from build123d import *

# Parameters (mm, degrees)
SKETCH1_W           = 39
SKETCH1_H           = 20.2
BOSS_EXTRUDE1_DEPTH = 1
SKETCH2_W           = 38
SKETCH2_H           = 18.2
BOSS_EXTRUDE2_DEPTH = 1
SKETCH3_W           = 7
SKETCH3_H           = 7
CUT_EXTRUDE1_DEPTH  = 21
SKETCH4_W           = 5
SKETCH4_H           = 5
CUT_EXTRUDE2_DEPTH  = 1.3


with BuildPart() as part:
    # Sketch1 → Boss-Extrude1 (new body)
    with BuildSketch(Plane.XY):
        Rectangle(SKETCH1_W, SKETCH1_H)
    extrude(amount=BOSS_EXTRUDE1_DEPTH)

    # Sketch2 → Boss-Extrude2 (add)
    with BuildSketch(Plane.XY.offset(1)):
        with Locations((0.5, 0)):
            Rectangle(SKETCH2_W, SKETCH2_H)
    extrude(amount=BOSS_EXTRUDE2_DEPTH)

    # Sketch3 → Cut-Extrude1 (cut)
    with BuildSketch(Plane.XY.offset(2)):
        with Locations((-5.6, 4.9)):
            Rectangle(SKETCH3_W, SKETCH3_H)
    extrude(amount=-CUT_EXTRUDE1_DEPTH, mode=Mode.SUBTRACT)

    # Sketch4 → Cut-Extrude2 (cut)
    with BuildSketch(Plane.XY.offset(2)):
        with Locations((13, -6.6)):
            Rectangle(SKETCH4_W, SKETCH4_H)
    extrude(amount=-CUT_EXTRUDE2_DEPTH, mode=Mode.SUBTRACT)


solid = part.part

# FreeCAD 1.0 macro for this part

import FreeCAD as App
import Part
import Sketcher
Q = App.Units.Quantity

doc = App.newDocument("Part")
body = doc.addObject("PartDesign::Body", "Body")

# Sketch on XY plane
sketch1 = body.newObject("Sketcher::SketchObject", "Sketch")
sketch1.AttachmentSupport = (doc.getObject("XY_Plane"), [""])
sketch1.MapMode = "FlatFace"
sketch1.addGeometry(Part.LineSegment(App.Vector(-20, 10, 0), App.Vector(-20, -10, 0)), False)
sketch1.addGeometry(Part.LineSegment(App.Vector(-20, -10, 0), App.Vector(20, -10, 0)), False)
sketch1.addGeometry(Part.LineSegment(App.Vector(20, -10, 0), App.Vector(20, 10, 0)), False)
sketch1.addGeometry(Part.LineSegment(App.Vector(20, 10, 0), App.Vector(-20, 10, 0)), False)
sketch1.addConstraint(Sketcher.Constraint("Coincident", 0, 2, 1, 1))
sketch1.addConstraint(Sketcher.Constraint("Coincident", 1, 2, 2, 1))
sketch1.addConstraint(Sketcher.Constraint("Coincident", 2, 2, 3, 1))
sketch1.addConstraint(Sketcher.Constraint("Coincident", 3, 2, 0, 1))
sketch1.addConstraint(Sketcher.Constraint("Vertical", 0))
sketch1.addConstraint(Sketcher.Constraint("Horizontal", 1))
sketch1.addConstraint(Sketcher.Constraint("Vertical", 2))
sketch1.addConstraint(Sketcher.Constraint("Horizontal", 3))
sketch1.addConstraint(Sketcher.Constraint("Symmetric", 0, 2, 2, 2, -1, 1))
sketch1.addConstraint(Sketcher.Constraint("DistanceX", 1, 1, 1, 2, Q("39 mm")))
sketch1.addConstraint(Sketcher.Constraint("DistanceY", 0, 2, 0, 1, Q("20.2 mm")))
pad1 = body.newObject("PartDesign::Pad", "Pad")
pad1.Profile = sketch1
pad1.Length = 1

# Sketch on XY plane
sketch2 = body.newObject("Sketcher::SketchObject", "Sketch001")
sketch2.AttachmentSupport = (doc.getObject("XY_Plane"), [""])
sketch2.MapMode = "FlatFace"
sketch2.AttachmentOffset = App.Placement(App.Vector(0, 0, 1), App.Rotation())
sketch2.addGeometry(Part.LineSegment(App.Vector(-18, 9, 0), App.Vector(-18, -9, 0)), False)
sketch2.addGeometry(Part.LineSegment(App.Vector(-18, -9, 0), App.Vector(20, -9, 0)), False)
sketch2.addGeometry(Part.LineSegment(App.Vector(20, -9, 0), App.Vector(20, 9, 0)), False)
sketch2.addGeometry(Part.LineSegment(App.Vector(20, 9, 0), App.Vector(-18, 9, 0)), False)
sketch2.addConstraint(Sketcher.Constraint("Coincident", 0, 2, 1, 1))
sketch2.addConstraint(Sketcher.Constraint("Coincident", 1, 2, 2, 1))
sketch2.addConstraint(Sketcher.Constraint("Coincident", 2, 2, 3, 1))
sketch2.addConstraint(Sketcher.Constraint("Coincident", 3, 2, 0, 1))
sketch2.addConstraint(Sketcher.Constraint("Vertical", 0))
sketch2.addConstraint(Sketcher.Constraint("Horizontal", 1))
sketch2.addConstraint(Sketcher.Constraint("Vertical", 2))
sketch2.addConstraint(Sketcher.Constraint("Horizontal", 3))
sketch2.addConstraint(Sketcher.Constraint("DistanceX", 1, 1, 1, 2, Q("38 mm")))
sketch2.addConstraint(Sketcher.Constraint("DistanceY", 0, 2, 0, 1, Q("18.2 mm")))
sketch2.addConstraint(Sketcher.Constraint("DistanceX", 0, 2, -1, 1, Q("18.5 mm")))
sketch2.addConstraint(Sketcher.Constraint("DistanceY", 0, 2, -1, 1, Q("9.1 mm")))
pad2 = body.newObject("PartDesign::Pad", "Pad001")
pad2.Profile = sketch2
pad2.Length = 1

# Sketch on XY plane
sketch3 = body.newObject("Sketcher::SketchObject", "Sketch002")
sketch3.AttachmentSupport = (doc.getObject("XY_Plane"), [""])
sketch3.MapMode = "FlatFace"
sketch3.AttachmentOffset = App.Placement(App.Vector(0, 0, 2), App.Rotation())
sketch3.addGeometry(Part.LineSegment(App.Vector(-9, 8, 0), App.Vector(-9, 1, 0)), False)
sketch3.addGeometry(Part.LineSegment(App.Vector(-9, 1, 0), App.Vector(-2, 1, 0)), False)
sketch3.addGeometry(Part.LineSegment(App.Vector(-2, 1, 0), App.Vector(-2, 8, 0)), False)
sketch3.addGeometry(Part.LineSegment(App.Vector(-2, 8, 0), App.Vector(-9, 8, 0)), False)
sketch3.addConstraint(Sketcher.Constraint("Coincident", 0, 2, 1, 1))
sketch3.addConstraint(Sketcher.Constraint("Coincident", 1, 2, 2, 1))
sketch3.addConstraint(Sketcher.Constraint("Coincident", 2, 2, 3, 1))
sketch3.addConstraint(Sketcher.Constraint("Coincident", 3, 2, 0, 1))
sketch3.addConstraint(Sketcher.Constraint("Vertical", 0))
sketch3.addConstraint(Sketcher.Constraint("Horizontal", 1))
sketch3.addConstraint(Sketcher.Constraint("Vertical", 2))
sketch3.addConstraint(Sketcher.Constraint("Horizontal", 3))
sketch3.addConstraint(Sketcher.Constraint("Equal", 3, 0))
sketch3.addConstraint(Sketcher.Constraint("DistanceX", 1, 1, 1, 2, Q("7 mm")))
sketch3.addConstraint(Sketcher.Constraint("DistanceX", 0, 2, -1, 1, Q("9.1 mm")))
sketch3.addConstraint(Sketcher.Constraint("DistanceY", -1, 1, 0, 2, Q("1.4 mm")))
pocket1 = body.newObject("PartDesign::Pocket", "Pocket")
pocket1.Profile = sketch3
pocket1.Length = 21

# Sketch on XY plane
sketch4 = body.newObject("Sketcher::SketchObject", "Sketch003")
sketch4.AttachmentSupport = (doc.getObject("XY_Plane"), [""])
sketch4.MapMode = "FlatFace"
sketch4.AttachmentOffset = App.Placement(App.Vector(0, 0, 2), App.Rotation())
sketch4.addGeometry(Part.LineSegment(App.Vector(10, -4, 0), App.Vector(10, -9, 0)), False)
sketch4.addGeometry(Part.LineSegment(App.Vector(10, -9, 0), App.Vector(16, -9, 0)), False)
sketch4.addGeometry(Part.LineSegment(App.Vector(16, -9, 0), App.Vector(16, -4, 0)), False)
sketch4.addGeometry(Part.LineSegment(App.Vector(16, -4, 0), App.Vector(10, -4, 0)), False)
sketch4.addConstraint(Sketcher.Constraint("Coincident", 0, 2, 1, 1))
sketch4.addConstraint(Sketcher.Constraint("Coincident", 1, 2, 2, 1))
sketch4.addConstraint(Sketcher.Constraint("Coincident", 2, 2, 3, 1))
sketch4.addConstraint(Sketcher.Constraint("Coincident", 3, 2, 0, 1))
sketch4.addConstraint(Sketcher.Constraint("Vertical", 0))
sketch4.addConstraint(Sketcher.Constraint("Horizontal", 1))
sketch4.addConstraint(Sketcher.Constraint("Vertical", 2))
sketch4.addConstraint(Sketcher.Constraint("Horizontal", 3))
sketch4.addConstraint(Sketcher.Constraint("Equal", 3, 0))
sketch4.addConstraint(Sketcher.Constraint("DistanceX", 1, 1, 1, 2, Q("5 mm")))
sketch4.addConstraint(Sketcher.Constraint("DistanceX", -1, 1, 0, 2, Q("10.5 mm")))
sketch4.addConstraint(Sketcher.Constraint("DistanceY", 0, 2, -1, 1, Q("9.1 mm")))
pocket2 = body.newObject("PartDesign::Pocket", "Pocket001")
pocket2.Profile = sketch4
pocket2.Length = 1.3

doc.recompute()
